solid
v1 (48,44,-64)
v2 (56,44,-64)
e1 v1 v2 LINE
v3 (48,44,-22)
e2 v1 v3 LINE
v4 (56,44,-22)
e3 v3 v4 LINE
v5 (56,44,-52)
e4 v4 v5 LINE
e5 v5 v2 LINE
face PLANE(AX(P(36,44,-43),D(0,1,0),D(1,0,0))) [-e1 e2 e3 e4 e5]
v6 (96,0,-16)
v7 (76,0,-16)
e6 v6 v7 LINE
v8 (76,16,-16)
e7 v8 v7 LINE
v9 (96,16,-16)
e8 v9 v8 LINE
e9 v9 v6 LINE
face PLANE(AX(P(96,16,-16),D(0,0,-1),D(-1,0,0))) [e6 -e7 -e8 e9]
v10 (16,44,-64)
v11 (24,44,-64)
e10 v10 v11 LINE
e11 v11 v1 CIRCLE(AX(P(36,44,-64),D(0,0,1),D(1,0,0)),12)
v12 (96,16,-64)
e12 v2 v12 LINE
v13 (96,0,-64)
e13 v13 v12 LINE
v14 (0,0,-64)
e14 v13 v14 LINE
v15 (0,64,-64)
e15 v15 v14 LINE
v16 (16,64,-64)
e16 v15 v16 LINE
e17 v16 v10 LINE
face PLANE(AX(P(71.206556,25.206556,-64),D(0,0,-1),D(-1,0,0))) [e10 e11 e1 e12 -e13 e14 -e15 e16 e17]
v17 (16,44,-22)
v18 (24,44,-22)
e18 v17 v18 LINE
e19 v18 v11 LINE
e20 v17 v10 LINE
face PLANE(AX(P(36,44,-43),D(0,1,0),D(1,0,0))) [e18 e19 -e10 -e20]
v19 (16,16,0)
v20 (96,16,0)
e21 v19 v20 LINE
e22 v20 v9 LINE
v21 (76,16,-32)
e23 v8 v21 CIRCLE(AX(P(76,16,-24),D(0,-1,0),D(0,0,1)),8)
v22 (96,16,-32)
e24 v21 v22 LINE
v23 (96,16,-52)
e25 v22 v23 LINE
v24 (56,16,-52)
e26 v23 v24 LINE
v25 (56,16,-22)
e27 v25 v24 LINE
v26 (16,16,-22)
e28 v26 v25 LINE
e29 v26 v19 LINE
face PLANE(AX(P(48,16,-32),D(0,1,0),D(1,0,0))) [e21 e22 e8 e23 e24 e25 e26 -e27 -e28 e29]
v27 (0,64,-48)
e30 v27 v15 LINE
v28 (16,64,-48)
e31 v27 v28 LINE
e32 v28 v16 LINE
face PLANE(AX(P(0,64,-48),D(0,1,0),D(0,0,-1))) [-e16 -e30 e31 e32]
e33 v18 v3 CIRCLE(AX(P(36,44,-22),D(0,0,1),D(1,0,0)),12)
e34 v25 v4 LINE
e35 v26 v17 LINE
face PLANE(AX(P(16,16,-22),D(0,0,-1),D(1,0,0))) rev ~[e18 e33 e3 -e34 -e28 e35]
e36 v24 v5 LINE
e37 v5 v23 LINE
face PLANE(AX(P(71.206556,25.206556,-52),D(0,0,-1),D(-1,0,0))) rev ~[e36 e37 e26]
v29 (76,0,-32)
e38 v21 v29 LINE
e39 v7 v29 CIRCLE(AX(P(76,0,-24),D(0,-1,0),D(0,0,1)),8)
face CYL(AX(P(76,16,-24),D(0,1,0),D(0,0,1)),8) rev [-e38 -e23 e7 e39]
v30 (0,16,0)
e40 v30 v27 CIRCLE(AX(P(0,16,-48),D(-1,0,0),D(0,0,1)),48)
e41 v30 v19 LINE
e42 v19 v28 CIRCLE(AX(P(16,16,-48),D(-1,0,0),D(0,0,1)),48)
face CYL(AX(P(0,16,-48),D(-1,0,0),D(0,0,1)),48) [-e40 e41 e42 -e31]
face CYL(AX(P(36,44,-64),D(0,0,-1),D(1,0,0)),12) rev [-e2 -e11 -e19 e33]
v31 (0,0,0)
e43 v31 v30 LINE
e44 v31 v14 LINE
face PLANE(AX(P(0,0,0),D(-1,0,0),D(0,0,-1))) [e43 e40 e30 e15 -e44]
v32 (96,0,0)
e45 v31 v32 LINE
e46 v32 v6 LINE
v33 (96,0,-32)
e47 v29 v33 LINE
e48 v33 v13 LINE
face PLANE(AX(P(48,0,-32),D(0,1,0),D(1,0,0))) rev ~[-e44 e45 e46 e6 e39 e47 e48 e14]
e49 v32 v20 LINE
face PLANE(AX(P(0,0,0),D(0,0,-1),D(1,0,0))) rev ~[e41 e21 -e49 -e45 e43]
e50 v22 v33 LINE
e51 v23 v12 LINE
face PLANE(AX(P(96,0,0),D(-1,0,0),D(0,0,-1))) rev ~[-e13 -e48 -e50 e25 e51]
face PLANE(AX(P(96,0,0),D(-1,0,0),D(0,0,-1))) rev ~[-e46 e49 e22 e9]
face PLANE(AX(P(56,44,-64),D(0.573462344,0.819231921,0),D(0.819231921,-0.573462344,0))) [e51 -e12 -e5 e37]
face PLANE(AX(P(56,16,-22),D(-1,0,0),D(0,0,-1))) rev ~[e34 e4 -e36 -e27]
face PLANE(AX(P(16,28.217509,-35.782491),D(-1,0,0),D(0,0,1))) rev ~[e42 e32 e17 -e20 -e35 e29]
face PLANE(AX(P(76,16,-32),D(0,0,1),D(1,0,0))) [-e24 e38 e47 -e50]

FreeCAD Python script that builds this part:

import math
import FreeCAD as App
import Part
import Sketcher
Q = App.Units.Quantity

doc = App.newDocument("Part")
body = doc.addObject("PartDesign::Body", "Body")

sketch1 = body.newObject("Sketcher::SketchObject", "Sketch")
sketch1.AttachmentSupport = (doc.getObject("XZ_Plane"), [""])
sketch1.MapMode = "FlatFace"
sketch1.addGeometry([
    Part.LineSegment(App.Vector(0, -64, 0), App.Vector(0, 0, 0)),
    Part.LineSegment(App.Vector(0, 0, 0), App.Vector(96, 0, 0)),
    Part.LineSegment(App.Vector(96, 0, 0), App.Vector(96, -64, 0)),
    Part.LineSegment(App.Vector(96, -64, 0), App.Vector(0, -64, 0)),
], False)
sketch1.addConstraint([
    Sketcher.Constraint("Coincident", 0, 2, 1, 1),
    Sketcher.Constraint("Coincident", 1, 2, 2, 1),
    Sketcher.Constraint("Coincident", 2, 2, 3, 1),
    Sketcher.Constraint("Coincident", 3, 2, 0, 1),
    Sketcher.Constraint("Vertical", 0),
    Sketcher.Constraint("Horizontal", 1),
    Sketcher.Constraint("Vertical", 2),
    Sketcher.Constraint("Horizontal", 3),
    Sketcher.Constraint("Coincident", 0, 2, -1, 1),
    Sketcher.Constraint("DistanceX", 1, 1, 1, 2, Q("96 mm")),
    Sketcher.Constraint("DistanceY", 0, 1, 0, 2, Q("64 mm")),
])
pad1 = body.newObject("PartDesign::Pad", "Pad")
pad1.Profile = sketch1
pad1.Length = 16
pad1.Reversed = True

sketch2 = body.newObject("Sketcher::SketchObject", "Sketch001")
sketch2.AttachmentSupport = (doc.getObject("XZ_Plane"), [""])
sketch2.MapMode = "FlatFace"
sketch2.AttachmentOffset = App.Placement(App.Vector(0, 0, -16), App.Rotation())
sketch2.addGeometry([
    Part.LineSegment(App.Vector(76, -16, 0), App.Vector(96, -16, 0)),
    Part.ArcOfCircle(Part.Circle(App.Vector(96, -24, 0), App.Vector(0, 0, 1), 8), math.radians(-90), math.radians(90)),
    Part.LineSegment(App.Vector(96, -32, 0), App.Vector(76, -32, 0)),
    Part.ArcOfCircle(Part.Circle(App.Vector(76, -24, 0), App.Vector(0, 0, 1), 8), math.radians(90), math.radians(270)),
], False)
sketch2.addConstraint([
    Sketcher.Constraint("Tangent", 0, 2, 1, 2),
    Sketcher.Constraint("Tangent", 1, 1, 2, 1),
    Sketcher.Constraint("Tangent", 2, 2, 3, 2),
    Sketcher.Constraint("Tangent", 3, 1, 0, 1),
    Sketcher.Constraint("Horizontal", 0),
    Sketcher.Constraint("Horizontal", 2),
    Sketcher.Constraint("Radius", 1, Q("8 mm")),
    Sketcher.Constraint("DistanceX", 0, 1, 0, 2, Q("20 mm")),
    Sketcher.Constraint("DistanceX", -1, 1, 1, 3, Q("96 mm")),
    Sketcher.Constraint("DistanceY", 1, 3, -1, 1, Q("24 mm")),
])
pocket1 = body.newObject("PartDesign::Pocket", "Pocket")
pocket1.Profile = sketch2
pocket1.Length = 16
pocket1.Reversed = True

sketch3 = body.newObject("Sketcher::SketchObject", "Sketch002")
sketch3.AttachmentSupport = (doc.getObject("YZ_Plane"), [""])
sketch3.MapMode = "FlatFace"
sketch3.addGeometry([
    Part.LineSegment(App.Vector(0, -64, 0), App.Vector(0, 0, 0)),
    Part.LineSegment(App.Vector(0, 0, 0), App.Vector(16, 0, 0)),
    Part.ArcOfCircle(Part.Circle(App.Vector(16, -48, 0), App.Vector(0, 0, 1), 48), math.radians(0), math.radians(90)),
    Part.LineSegment(App.Vector(64, -48, 0), App.Vector(64, -64, 0)),
    Part.LineSegment(App.Vector(64, -64, 0), App.Vector(0, -64, 0)),
], False)
sketch3.addConstraint([
    Sketcher.Constraint("Coincident", 0, 2, 1, 1),
    Sketcher.Constraint("Tangent", 1, 2, 2, 2),
    Sketcher.Constraint("Tangent", 2, 1, 3, 1),
    Sketcher.Constraint("Coincident", 3, 2, 4, 1),
    Sketcher.Constraint("Coincident", 4, 2, 0, 1),
    Sketcher.Constraint("Vertical", 0),
    Sketcher.Constraint("Horizontal", 1),
    Sketcher.Constraint("Vertical", 3),
    Sketcher.Constraint("Horizontal", 4),
    Sketcher.Constraint("Coincident", 0, 2, -1, 1),
    Sketcher.Constraint("Equal", 4, 0),
    Sketcher.Constraint("Radius", 2, Q("48 mm")),
    Sketcher.Constraint("DistanceX", 1, 1, 1, 2, Q("16 mm")),
])
pad2 = body.newObject("PartDesign::Pad", "Pad001")
pad2.Profile = sketch3
pad2.Length = 16

sketch4 = body.newObject("Sketcher::SketchObject", "Sketch003")
sketch4.AttachmentSupport = (doc.getObject("XZ_Plane"), [""])
sketch4.MapMode = "FlatFace"
sketch4.AttachmentOffset = App.Placement(App.Vector(0, 0, -16), App.Rotation())
sketch4.addGeometry([
    Part.LineSegment(App.Vector(16, -64, 0), App.Vector(16, -22, 0)),
    Part.LineSegment(App.Vector(16, -22, 0), App.Vector(56, -22, 0)),
    Part.LineSegment(App.Vector(56, -22, 0), App.Vector(56, -64, 0)),
    Part.LineSegment(App.Vector(56, -64, 0), App.Vector(16, -64, 0)),
], False)
sketch4.addConstraint([
    Sketcher.Constraint("Coincident", 0, 2, 1, 1),
    Sketcher.Constraint("Coincident", 1, 2, 2, 1),
    Sketcher.Constraint("Coincident", 2, 2, 3, 1),
    Sketcher.Constraint("Coincident", 3, 2, 0, 1),
    Sketcher.Constraint("Vertical", 0),
    Sketcher.Constraint("Horizontal", 1),
    Sketcher.Constraint("Vertical", 2),
    Sketcher.Constraint("Horizontal", 3),
    Sketcher.Constraint("DistanceX", 1, 1, 1, 2, Q("40 mm")),
    Sketcher.Constraint("DistanceY", 0, 1, 0, 2, Q("42 mm")),
    Sketcher.Constraint("DistanceX", -1, 1, 0, 2, Q("16 mm")),
    Sketcher.Constraint("DistanceY", 0, 2, -1, 1, Q("22 mm")),
])
pad3 = body.newObject("PartDesign::Pad", "Pad002")
pad3.Profile = sketch4
pad3.Length = 28
pad3.Reversed = True

sketch5 = body.newObject("Sketcher::SketchObject", "Sketch004")
sketch5.AttachmentSupport = (doc.getObject("XY_Plane"), [""])
sketch5.MapMode = "FlatFace"
sketch5.AttachmentOffset = App.Placement(App.Vector(0, 0, -64), App.Rotation())
sketch5.addGeometry(Part.Circle(App.Vector(36, 44, 0), App.Vector(0, 0, 1), 12), False)
sketch5.addConstraint([
    Sketcher.Constraint("Diameter", 0, Q("24 mm")),
    Sketcher.Constraint("DistanceX", -1, 1, 0, 3, Q("36 mm")),
    Sketcher.Constraint("DistanceY", -1, 1, 0, 3, Q("44 mm")),
])
pocket2 = body.newObject("PartDesign::Pocket", "Pocket001")
pocket2.Profile = sketch5
pocket2.Length = 42
pocket2.Reversed = True

sketch6 = body.newObject("Sketcher::SketchObject", "Sketch005")
sketch6.AttachmentSupport = (doc.getObject("XY_Plane"), [""])
sketch6.MapMode = "FlatFace"
sketch6.AttachmentOffset = App.Placement(App.Vector(0, 0, -64), App.Rotation())
sketch6.addGeometry([
    Part.LineSegment(App.Vector(56, 44, 0), App.Vector(96, 16, 0)),
    Part.LineSegment(App.Vector(96, 16, 0), App.Vector(56, 16, 0)),
    Part.LineSegment(App.Vector(56, 16, 0), App.Vector(56, 44, 0)),
], False)
sketch6.addConstraint([
    Sketcher.Constraint("Coincident", 0, 2, 1, 1),
    Sketcher.Constraint("Coincident", 1, 2, 2, 1),
    Sketcher.Constraint("Coincident", 2, 2, 0, 1),
    Sketcher.Constraint("Horizontal", 1),
    Sketcher.Constraint("Vertical", 2),
    Sketcher.Constraint("DistanceX", 1, 2, 1, 1, Q("40 mm")),
    Sketcher.Constraint("DistanceY", 2, 1, 2, 2, Q("28 mm")),
    Sketcher.Constraint("DistanceX", -1, 1, 0, 2, Q("96 mm")),
    Sketcher.Constraint("DistanceY", -1, 1, 0, 2, Q("16 mm")),
])
pad4 = body.newObject("PartDesign::Pad", "Pad003")
pad4.Profile = sketch6
pad4.Length = 12

doc.recompute()
